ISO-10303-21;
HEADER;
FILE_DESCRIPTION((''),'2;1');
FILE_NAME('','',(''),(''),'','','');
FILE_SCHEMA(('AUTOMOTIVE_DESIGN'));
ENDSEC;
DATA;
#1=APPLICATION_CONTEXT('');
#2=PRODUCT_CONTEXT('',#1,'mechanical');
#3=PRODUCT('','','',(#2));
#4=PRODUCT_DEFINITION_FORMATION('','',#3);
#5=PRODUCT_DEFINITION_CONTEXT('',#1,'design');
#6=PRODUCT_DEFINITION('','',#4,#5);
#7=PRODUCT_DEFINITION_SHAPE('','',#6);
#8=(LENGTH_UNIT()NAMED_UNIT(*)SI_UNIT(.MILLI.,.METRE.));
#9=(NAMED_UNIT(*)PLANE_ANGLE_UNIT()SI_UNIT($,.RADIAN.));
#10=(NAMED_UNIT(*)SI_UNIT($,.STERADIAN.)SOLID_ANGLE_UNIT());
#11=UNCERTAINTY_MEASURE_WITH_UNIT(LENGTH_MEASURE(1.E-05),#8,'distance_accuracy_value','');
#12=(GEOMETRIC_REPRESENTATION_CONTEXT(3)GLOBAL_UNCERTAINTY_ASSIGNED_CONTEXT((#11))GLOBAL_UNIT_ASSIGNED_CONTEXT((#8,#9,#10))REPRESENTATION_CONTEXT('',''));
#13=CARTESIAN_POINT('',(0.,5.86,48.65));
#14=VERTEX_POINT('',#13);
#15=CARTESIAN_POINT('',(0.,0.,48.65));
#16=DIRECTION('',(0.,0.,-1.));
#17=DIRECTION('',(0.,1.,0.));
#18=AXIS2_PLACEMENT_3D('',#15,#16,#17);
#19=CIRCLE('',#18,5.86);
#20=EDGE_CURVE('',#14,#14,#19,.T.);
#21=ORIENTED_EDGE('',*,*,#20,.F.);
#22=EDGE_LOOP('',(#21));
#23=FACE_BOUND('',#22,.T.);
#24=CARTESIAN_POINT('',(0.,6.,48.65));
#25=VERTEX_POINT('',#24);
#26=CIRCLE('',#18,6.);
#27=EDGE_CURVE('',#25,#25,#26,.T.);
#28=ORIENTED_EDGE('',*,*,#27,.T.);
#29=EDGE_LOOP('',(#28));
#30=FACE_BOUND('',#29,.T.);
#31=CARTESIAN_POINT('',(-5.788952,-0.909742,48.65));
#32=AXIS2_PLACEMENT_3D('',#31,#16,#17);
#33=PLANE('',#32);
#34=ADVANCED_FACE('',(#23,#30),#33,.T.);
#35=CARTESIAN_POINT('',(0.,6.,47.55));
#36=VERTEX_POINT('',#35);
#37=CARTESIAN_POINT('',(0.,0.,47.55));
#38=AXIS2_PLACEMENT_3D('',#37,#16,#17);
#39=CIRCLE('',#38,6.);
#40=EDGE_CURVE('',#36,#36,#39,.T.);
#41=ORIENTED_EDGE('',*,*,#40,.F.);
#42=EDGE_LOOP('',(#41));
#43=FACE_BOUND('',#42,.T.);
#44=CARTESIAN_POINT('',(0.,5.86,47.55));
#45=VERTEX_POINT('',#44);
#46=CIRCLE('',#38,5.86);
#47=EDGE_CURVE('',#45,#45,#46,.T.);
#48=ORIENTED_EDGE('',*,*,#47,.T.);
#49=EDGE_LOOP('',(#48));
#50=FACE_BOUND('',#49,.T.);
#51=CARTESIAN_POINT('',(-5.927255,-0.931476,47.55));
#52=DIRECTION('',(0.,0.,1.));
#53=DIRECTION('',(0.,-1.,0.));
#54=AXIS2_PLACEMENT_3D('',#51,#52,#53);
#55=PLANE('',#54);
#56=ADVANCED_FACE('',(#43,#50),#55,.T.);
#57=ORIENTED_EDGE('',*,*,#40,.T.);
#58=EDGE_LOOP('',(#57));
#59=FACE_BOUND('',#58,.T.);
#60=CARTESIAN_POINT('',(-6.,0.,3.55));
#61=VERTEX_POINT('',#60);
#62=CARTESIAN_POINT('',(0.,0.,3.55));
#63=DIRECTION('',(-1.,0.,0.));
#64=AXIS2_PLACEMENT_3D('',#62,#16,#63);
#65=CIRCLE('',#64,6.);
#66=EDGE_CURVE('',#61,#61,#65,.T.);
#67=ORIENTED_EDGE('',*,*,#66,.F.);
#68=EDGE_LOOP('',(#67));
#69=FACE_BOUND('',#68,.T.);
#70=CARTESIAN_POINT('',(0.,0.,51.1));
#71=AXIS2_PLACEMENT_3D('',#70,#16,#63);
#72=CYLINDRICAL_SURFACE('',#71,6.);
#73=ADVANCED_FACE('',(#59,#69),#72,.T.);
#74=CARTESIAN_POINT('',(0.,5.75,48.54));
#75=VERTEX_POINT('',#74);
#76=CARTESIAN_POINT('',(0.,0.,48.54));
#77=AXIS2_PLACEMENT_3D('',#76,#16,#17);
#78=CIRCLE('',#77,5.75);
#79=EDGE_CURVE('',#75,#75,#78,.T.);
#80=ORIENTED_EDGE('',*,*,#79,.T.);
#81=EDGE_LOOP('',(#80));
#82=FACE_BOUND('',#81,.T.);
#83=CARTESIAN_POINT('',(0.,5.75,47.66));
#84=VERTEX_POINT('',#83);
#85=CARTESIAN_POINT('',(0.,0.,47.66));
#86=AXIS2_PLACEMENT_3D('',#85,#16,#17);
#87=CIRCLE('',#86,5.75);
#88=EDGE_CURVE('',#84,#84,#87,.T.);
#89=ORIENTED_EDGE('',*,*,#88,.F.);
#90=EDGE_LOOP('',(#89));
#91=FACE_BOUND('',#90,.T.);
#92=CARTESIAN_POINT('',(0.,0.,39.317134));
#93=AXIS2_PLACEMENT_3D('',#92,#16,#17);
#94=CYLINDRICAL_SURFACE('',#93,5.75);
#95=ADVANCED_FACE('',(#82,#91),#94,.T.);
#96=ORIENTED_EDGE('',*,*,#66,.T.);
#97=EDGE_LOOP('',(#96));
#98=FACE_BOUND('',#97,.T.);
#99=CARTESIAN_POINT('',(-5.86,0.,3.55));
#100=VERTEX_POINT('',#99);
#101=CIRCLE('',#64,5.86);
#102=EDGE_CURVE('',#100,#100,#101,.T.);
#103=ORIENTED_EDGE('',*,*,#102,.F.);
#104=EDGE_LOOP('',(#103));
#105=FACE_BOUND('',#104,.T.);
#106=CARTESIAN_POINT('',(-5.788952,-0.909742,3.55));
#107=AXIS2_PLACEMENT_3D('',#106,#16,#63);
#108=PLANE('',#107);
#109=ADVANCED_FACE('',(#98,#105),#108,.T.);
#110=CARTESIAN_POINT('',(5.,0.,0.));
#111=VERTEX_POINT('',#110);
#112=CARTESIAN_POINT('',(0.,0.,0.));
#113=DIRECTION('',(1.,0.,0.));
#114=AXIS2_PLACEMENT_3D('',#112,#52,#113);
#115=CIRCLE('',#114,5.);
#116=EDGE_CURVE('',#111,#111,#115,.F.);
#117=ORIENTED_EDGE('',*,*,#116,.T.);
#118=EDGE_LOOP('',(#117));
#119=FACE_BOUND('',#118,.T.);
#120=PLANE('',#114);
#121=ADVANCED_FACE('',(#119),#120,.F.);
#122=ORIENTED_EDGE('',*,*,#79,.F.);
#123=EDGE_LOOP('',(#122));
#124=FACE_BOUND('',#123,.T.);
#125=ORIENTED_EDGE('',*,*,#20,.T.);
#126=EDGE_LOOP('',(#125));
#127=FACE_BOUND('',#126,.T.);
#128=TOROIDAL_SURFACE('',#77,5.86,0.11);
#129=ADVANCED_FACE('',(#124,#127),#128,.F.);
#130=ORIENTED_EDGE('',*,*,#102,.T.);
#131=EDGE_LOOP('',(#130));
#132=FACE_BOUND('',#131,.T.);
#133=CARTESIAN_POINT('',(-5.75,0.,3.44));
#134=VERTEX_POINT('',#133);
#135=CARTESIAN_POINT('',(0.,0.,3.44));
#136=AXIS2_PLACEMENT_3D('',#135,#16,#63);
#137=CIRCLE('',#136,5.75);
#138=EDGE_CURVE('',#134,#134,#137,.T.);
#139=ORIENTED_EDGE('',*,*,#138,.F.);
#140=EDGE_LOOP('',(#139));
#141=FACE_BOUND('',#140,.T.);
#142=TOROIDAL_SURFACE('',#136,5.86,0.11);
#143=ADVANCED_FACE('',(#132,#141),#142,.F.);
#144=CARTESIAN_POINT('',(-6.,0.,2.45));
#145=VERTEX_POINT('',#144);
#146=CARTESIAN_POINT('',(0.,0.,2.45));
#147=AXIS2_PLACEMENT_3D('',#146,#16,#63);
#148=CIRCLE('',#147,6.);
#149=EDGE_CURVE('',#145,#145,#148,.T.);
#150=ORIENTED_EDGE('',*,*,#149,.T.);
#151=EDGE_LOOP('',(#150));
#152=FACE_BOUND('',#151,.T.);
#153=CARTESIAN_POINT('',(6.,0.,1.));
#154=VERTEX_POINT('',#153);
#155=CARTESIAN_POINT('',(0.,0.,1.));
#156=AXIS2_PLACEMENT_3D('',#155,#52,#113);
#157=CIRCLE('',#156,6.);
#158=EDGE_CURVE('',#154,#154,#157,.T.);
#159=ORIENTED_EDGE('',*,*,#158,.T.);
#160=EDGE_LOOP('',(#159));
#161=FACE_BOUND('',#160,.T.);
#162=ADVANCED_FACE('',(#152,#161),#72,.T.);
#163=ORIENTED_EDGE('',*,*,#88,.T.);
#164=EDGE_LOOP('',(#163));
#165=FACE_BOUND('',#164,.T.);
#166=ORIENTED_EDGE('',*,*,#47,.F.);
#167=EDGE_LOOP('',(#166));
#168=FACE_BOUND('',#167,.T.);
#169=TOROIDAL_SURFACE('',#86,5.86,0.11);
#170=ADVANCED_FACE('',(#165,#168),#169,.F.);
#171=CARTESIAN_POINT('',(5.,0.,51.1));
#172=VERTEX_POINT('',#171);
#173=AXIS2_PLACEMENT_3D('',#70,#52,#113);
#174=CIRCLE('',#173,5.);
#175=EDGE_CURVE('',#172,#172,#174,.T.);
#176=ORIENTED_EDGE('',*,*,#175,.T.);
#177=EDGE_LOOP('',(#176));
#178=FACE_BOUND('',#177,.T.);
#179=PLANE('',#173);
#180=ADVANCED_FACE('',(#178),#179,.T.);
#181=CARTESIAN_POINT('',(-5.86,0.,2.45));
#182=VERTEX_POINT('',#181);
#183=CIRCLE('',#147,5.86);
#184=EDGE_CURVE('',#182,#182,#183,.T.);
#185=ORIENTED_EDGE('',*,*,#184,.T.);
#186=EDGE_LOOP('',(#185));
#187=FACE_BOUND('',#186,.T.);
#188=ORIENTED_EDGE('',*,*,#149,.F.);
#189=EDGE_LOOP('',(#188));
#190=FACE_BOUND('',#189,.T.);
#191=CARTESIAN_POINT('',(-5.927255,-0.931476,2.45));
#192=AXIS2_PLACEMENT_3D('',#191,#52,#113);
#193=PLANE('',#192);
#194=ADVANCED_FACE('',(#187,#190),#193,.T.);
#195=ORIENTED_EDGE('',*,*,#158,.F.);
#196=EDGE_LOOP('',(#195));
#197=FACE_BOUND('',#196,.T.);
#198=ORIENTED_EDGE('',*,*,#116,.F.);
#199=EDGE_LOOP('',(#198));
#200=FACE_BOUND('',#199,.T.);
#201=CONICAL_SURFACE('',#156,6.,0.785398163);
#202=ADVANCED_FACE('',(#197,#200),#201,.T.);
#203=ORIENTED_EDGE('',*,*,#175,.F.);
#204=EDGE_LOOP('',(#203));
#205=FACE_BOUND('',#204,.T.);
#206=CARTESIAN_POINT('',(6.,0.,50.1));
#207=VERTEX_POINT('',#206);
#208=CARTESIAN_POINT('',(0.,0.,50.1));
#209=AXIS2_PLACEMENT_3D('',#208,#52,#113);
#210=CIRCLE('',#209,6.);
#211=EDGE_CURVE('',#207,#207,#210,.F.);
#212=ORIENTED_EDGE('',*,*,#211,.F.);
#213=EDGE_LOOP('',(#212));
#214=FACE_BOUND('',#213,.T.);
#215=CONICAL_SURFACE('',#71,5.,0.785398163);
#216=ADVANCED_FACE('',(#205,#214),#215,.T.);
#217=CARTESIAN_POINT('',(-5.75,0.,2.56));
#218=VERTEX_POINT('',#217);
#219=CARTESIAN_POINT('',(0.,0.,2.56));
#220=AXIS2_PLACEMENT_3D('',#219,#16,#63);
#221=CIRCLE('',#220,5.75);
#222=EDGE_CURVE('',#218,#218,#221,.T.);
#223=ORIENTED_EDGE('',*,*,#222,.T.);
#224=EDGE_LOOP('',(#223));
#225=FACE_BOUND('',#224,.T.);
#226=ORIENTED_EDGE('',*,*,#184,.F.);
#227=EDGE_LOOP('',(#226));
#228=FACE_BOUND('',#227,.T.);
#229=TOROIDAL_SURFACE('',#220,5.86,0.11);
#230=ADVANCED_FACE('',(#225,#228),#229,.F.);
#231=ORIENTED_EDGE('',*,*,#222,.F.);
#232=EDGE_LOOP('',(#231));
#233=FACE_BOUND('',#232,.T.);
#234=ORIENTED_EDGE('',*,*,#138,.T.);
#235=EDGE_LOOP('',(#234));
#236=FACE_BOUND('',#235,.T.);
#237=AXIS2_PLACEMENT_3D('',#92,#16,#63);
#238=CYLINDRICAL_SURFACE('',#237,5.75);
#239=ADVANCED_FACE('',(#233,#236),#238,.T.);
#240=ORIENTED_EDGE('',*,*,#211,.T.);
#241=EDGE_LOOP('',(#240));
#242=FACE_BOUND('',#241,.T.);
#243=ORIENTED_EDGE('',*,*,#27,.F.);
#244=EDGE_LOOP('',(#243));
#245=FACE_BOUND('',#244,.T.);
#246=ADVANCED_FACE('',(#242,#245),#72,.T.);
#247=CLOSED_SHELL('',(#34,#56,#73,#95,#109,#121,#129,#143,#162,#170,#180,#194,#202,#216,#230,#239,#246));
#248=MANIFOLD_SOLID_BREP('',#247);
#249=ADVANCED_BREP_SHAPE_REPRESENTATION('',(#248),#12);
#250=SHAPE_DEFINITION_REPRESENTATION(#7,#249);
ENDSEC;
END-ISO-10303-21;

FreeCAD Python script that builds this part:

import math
import FreeCAD as App
import Part
import Sketcher


def edges_at(feature, points):
    """Names of the edges that pass closest to the given points."""
    edges = feature.Shape.Edges
    near = lambda p: min(range(len(edges)), key=lambda i: edges[i].distToShape(Part.Vertex(*p))[0])
    return sorted({f"Edge{near(p) + 1}" for p in points})

doc = App.newDocument("Part")
body = doc.addObject("PartDesign::Body", "Body")

sketch1 = body.newObject("Sketcher::SketchObject", "Sketch")
sketch1.AttachmentSupport = (doc.getObject("XY_Plane"), [""])
sketch1.MapMode = "FlatFace"
sketch1.addGeometry(Part.Circle(App.Vector(0, 0, 0), App.Vector(0, 0, 1), 6), False)
sketch1.addConstraint([
    Sketcher.Constraint("Coincident", 0, 3, -1, 1),
    Sketcher.Constraint("Diameter", 0, 12.0),
])
pad1 = body.newObject("PartDesign::Pad", "Pad")
pad1.Profile = sketch1
pad1.Length = 51.1
doc.recompute()

chamfer = body.newObject("PartDesign::Chamfer", "Chamfer")
chamfer.Base = (pad1, edges_at(pad1, [(-6, 0, 0), (-6, 0, 51.1)]))
chamfer.Size = 1

sketch2 = body.newObject("Sketcher::SketchObject", "Sketch001")
sketch2.Placement = App.Placement(App.Vector(11.571093, 1.818413, 30.848914), App.Rotation(App.Vector(-0.167040778, -0.026250685, 0.985600467), App.Vector(-0.973650887, -0.153010559, -0.169090863), App.Vector(0.155246029, -0.987875838, 0), "ZXY"))
sketch2.addGeometry([
    Part.LineSegment(App.Vector(20.52, 14.31, 0), App.Vector(20.54, 14.45, 0)),
    Part.LineSegment(App.Vector(20.54, 14.45, 0), App.Vector(19.46, 14.63, 0)),
    Part.LineSegment(App.Vector(19.46, 14.63, 0), App.Vector(19.43, 14.5, 0)),
    Part.ArcOfCircle(Part.Circle(App.Vector(19.54, 14.48, 0), App.Vector(0, 0, 1), 0.11), math.radians(170), math.radians(260)),
    Part.LineSegment(App.Vector(19.52, 14.37, 0), App.Vector(20.39, 14.22, 0)),
    Part.ArcOfCircle(Part.Circle(App.Vector(20.41, 14.33, 0), App.Vector(0, 0, 1), 0.11), math.radians(-100), math.radians(-10)),
], False)
sketch2.addGeometry(Part.LineSegment(App.Vector(19.53, 8.53, 0), App.Vector(18.44, 8.72, 0)), True)
sketch2.addConstraint([
    Sketcher.Constraint("Coincident", 0, 2, 1, 1),
    Sketcher.Constraint("Coincident", 1, 2, 2, 1),
    Sketcher.Constraint("Tangent", 2, 2, 3, 1),
    Sketcher.Constraint("Tangent", 3, 2, 4, 1),
    Sketcher.Constraint("Tangent", 4, 2, 5, 1),
    Sketcher.Constraint("Tangent", 5, 2, 0, 1),
    Sketcher.Constraint("Equal", 3, 5),
    Sketcher.Constraint("Perpendicular", 0, 1),
    Sketcher.Constraint("Perpendicular", 1, 2),
    Sketcher.Constraint("Perpendicular", 2, 4),
    Sketcher.Constraint("Parallel", 4, 6),
    Sketcher.Constraint("Equal", 1, 6),
    Sketcher.Constraint("Radius", 3, 0.11),
    Sketcher.Constraint("Distance", 1, 1.1),
    Sketcher.Constraint("Distance", 0, 0.14),
    Sketcher.Constraint("DistanceY", 0, 2, 1, 2, 0.186),
    Sketcher.Constraint("DistanceY", -1, 1, 3, 3, 14.47746),
    Sketcher.Constraint("DistanceX", -1, 1, 1, 2, 19.455722),
    Sketcher.Constraint("DistanceY", -1, 1, 6, 1, 8.534441),
    Sketcher.Constraint("DistanceX", 6, 2, 3, 2, 1.080689),
])
groove = body.newObject("PartDesign::Groove", "Groove")
groove.Profile = sketch2
groove.ReferenceAxis = (sketch2, ["Axis0"])
groove.Angle = 360

sketch3 = body.newObject("Sketcher::SketchObject", "Sketch002")
sketch3.Placement = App.Placement(App.Vector(11.571093, 1.818413, 30.848914), App.Rotation(App.Vector(-0.167040778, -0.026250685, 0.985600467), App.Vector(-0.973650887, -0.153010559, -0.169090863), App.Vector(0.155246029, -0.987875838, 0), "ZXY"))
sketch3.addGeometry([
    Part.LineSegment(App.Vector(-23.93, 21.94, 0), App.Vector(-23.91, 22.07, 0)),
    Part.LineSegment(App.Vector(-23.91, 22.07, 0), App.Vector(-24.99, 22.26, 0)),
    Part.LineSegment(App.Vector(-24.99, 22.26, 0), App.Vector(-25.02, 22.12, 0)),
    Part.ArcOfCircle(Part.Circle(App.Vector(-24.91, 22.1, 0), App.Vector(0, 0, 1), 0.11), math.radians(170), math.radians(260)),
    Part.LineSegment(App.Vector(-24.93, 22, 0), App.Vector(-24.06, 21.85, 0)),
    Part.ArcOfCircle(Part.Circle(App.Vector(-24.04, 21.95, 0), App.Vector(0, 0, 1), 0.11), math.radians(-100), math.radians(-10)),
], False)
sketch3.addGeometry(Part.LineSegment(App.Vector(-24.93, 16.16, 0), App.Vector(-26.01, 16.35, 0)), True)
sketch3.addConstraint([
    Sketcher.Constraint("Coincident", 0, 2, 1, 1),
    Sketcher.Constraint("Coincident", 1, 2, 2, 1),
    Sketcher.Constraint("Tangent", 2, 2, 3, 1),
    Sketcher.Constraint("Tangent", 3, 2, 4, 1),
    Sketcher.Constraint("Tangent", 4, 2, 5, 1),
    Sketcher.Constraint("Tangent", 5, 2, 0, 1),
    Sketcher.Constraint("Equal", 3, 5),
    Sketcher.Constraint("Perpendicular", 0, 1),
    Sketcher.Constraint("Perpendicular", 1, 2),
    Sketcher.Constraint("Perpendicular", 2, 4),
    Sketcher.Constraint("Parallel", 4, 6),
    Sketcher.Constraint("Equal", 1, 6),
    Sketcher.Constraint("Radius", 3, 0.11),
    Sketcher.Constraint("Distance", 1, 1.1),
    Sketcher.Constraint("Distance", 0, 0.14),
    Sketcher.Constraint("DistanceY", 0, 2, 1, 2, 0.186),
    Sketcher.Constraint("DistanceX", 0, 2, -1, 1, 23.910699),
    Sketcher.Constraint("DistanceY", -1, 1, 0, 2, 22.074042),
    Sketcher.Constraint("DistanceY", -1, 1, 6, 1, 16.160439),
    Sketcher.Constraint("DistanceX", 3, 2, 6, 1, 0.003472),
])
groove2 = body.newObject("PartDesign::Groove", "Groove001")
groove2.Profile = sketch3
groove2.ReferenceAxis = (sketch3, ["Axis0"])
groove2.Angle = 360

doc.recompute()
